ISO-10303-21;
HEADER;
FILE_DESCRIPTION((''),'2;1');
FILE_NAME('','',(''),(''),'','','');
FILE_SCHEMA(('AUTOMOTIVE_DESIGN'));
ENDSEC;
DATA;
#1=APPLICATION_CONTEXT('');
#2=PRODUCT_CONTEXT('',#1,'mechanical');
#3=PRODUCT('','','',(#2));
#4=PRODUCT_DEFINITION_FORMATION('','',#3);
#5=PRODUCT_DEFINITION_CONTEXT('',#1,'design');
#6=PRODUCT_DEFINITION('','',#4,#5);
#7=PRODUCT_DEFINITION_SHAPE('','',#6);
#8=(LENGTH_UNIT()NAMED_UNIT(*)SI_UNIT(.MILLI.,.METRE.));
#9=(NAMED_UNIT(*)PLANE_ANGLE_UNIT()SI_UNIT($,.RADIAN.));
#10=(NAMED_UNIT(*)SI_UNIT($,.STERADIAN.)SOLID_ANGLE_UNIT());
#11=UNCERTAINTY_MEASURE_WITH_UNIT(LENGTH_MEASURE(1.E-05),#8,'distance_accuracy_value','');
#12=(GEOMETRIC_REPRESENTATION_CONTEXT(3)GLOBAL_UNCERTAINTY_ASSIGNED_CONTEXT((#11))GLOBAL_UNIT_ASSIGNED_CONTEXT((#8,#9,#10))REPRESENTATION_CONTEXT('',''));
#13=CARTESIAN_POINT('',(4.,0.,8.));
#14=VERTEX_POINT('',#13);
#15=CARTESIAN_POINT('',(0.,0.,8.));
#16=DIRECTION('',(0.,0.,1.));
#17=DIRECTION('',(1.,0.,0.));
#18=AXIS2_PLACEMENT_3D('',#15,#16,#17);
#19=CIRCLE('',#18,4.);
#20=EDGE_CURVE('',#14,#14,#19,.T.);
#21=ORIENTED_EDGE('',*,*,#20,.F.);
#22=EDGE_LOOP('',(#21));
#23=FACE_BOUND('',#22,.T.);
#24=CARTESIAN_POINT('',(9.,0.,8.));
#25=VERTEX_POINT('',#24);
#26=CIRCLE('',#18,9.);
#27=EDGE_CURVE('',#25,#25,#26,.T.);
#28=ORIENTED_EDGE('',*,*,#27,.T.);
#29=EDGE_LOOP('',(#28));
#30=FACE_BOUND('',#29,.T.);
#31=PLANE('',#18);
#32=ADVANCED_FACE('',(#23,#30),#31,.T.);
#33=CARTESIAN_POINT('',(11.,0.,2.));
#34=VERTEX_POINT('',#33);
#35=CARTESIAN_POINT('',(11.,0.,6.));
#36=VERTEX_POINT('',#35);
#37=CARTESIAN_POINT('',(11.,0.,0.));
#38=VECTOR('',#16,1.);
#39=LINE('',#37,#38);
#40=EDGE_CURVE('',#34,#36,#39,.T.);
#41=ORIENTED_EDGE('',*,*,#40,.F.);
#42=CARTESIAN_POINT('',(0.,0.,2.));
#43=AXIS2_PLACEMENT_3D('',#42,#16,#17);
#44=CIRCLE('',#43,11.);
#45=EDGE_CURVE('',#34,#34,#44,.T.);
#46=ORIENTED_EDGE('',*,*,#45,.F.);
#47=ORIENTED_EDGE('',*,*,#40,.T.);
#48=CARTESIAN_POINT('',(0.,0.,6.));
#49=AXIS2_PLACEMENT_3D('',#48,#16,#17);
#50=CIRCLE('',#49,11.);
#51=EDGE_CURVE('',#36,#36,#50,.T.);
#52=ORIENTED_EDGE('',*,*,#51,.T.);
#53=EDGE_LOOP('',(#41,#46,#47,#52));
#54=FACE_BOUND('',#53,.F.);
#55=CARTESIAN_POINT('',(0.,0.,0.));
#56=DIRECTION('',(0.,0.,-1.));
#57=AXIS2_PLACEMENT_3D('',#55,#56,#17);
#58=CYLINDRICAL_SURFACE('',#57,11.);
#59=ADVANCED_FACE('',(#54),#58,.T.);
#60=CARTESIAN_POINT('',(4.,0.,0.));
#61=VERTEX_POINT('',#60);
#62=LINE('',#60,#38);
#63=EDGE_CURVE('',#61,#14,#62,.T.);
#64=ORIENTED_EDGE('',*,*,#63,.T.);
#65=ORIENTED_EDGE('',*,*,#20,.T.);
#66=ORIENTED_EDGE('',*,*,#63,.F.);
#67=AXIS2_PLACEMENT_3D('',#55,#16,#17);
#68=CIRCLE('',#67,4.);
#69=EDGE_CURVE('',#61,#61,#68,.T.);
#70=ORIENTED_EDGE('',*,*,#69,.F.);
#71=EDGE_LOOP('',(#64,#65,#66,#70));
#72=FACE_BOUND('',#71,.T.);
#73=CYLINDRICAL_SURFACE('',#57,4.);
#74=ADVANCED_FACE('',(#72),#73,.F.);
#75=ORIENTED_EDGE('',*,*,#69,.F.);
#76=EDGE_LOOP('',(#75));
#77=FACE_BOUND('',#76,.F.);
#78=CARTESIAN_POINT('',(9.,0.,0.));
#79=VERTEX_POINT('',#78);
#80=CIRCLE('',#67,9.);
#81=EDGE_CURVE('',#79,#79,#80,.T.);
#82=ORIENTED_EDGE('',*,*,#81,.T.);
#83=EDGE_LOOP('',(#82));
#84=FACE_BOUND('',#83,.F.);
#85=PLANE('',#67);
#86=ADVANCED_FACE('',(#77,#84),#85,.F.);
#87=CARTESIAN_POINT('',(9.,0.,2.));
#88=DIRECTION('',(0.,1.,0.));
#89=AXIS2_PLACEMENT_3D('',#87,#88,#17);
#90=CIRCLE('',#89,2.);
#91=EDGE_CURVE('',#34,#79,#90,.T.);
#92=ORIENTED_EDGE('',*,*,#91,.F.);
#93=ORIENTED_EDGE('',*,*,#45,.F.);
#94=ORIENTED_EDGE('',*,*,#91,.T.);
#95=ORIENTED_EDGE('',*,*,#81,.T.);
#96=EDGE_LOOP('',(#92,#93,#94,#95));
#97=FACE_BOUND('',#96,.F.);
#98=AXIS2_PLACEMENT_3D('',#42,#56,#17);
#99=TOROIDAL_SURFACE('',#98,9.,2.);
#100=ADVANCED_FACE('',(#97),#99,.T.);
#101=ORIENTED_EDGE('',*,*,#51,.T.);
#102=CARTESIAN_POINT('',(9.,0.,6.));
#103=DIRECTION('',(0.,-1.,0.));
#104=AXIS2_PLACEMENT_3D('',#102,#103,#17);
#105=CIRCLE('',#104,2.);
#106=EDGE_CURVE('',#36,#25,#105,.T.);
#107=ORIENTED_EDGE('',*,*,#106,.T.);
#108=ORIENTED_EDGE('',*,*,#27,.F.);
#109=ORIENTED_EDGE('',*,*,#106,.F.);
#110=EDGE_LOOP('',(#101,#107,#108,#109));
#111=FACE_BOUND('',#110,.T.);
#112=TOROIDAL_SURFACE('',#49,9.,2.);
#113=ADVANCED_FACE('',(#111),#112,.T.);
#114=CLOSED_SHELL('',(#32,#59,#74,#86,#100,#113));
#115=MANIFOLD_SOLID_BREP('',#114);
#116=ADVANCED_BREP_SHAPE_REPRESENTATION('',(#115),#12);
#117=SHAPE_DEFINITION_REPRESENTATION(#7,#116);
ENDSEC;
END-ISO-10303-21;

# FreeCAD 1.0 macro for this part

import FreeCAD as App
import Part
import Sketcher

V = App.Vector


def edges_at(feature, points):
    """Names of the edges that pass closest to the given points."""
    edges = feature.Shape.Edges
    near = lambda p: min(range(len(edges)), key=lambda i: edges[i].distToShape(Part.Vertex(*p))[0])
    return sorted({f"Edge{near(p) + 1}" for p in points})

doc = App.newDocument("Part")
params = doc.addObject("Spreadsheet::Sheet", "Params")
for row, (alias, value) in enumerate([
    ("sketch1_diameter", "22 mm"),
    ("sketch1_diameter2", "8 mm"),
    ("pad1_length", "8 mm"),
    ("fillet_radius", "2 mm"),
], start=1):
    params.set(f"A{row}", alias)
    params.set(f"B{row}", "=" + value)
    params.setAlias(f"B{row}", alias)

body = doc.addObject("PartDesign::Body", "Body")

# Sketch on XY plane
sketch1 = body.newObject("Sketcher::SketchObject", "Sketch")
sketch1.AttachmentSupport = (doc.getObject("XY_Plane"), [""])
sketch1.MapMode = "FlatFace"
sketch1.addGeometry(Part.Circle(V(0, 0, 0), V(0, 0, 1), 11), False)
sketch1.addGeometry(Part.Circle(V(0, 0, 0), V(0, 0, 1), 4), False)
sketch1.addConstraint(Sketcher.Constraint("Coincident", 0, 3, -1, 1))
sketch1.addConstraint(Sketcher.Constraint("Coincident", 1, 3, -1, 1))
sketch1.addConstraint(Sketcher.Constraint("Diameter", 0, 22.0))
sketch1.addConstraint(Sketcher.Constraint("Diameter", 1, 8.0))
sketch1.setExpression("Constraints[2]", "Params.sketch1_diameter")
sketch1.setExpression("Constraints[3]", "Params.sketch1_diameter2")
pad1 = body.newObject("PartDesign::Pad", "Pad")
pad1.Profile = sketch1
pad1.setExpression("Length", "Params.pad1_length")
doc.recompute()

fillet = body.newObject("PartDesign::Fillet", "Fillet")
fillet.Base = (pad1, edges_at(pad1, [(-11, 0, 8), (-11, 0, 0)]))
fillet.setExpression("Radius", "Params.fillet_radius")

doc.recompute()
